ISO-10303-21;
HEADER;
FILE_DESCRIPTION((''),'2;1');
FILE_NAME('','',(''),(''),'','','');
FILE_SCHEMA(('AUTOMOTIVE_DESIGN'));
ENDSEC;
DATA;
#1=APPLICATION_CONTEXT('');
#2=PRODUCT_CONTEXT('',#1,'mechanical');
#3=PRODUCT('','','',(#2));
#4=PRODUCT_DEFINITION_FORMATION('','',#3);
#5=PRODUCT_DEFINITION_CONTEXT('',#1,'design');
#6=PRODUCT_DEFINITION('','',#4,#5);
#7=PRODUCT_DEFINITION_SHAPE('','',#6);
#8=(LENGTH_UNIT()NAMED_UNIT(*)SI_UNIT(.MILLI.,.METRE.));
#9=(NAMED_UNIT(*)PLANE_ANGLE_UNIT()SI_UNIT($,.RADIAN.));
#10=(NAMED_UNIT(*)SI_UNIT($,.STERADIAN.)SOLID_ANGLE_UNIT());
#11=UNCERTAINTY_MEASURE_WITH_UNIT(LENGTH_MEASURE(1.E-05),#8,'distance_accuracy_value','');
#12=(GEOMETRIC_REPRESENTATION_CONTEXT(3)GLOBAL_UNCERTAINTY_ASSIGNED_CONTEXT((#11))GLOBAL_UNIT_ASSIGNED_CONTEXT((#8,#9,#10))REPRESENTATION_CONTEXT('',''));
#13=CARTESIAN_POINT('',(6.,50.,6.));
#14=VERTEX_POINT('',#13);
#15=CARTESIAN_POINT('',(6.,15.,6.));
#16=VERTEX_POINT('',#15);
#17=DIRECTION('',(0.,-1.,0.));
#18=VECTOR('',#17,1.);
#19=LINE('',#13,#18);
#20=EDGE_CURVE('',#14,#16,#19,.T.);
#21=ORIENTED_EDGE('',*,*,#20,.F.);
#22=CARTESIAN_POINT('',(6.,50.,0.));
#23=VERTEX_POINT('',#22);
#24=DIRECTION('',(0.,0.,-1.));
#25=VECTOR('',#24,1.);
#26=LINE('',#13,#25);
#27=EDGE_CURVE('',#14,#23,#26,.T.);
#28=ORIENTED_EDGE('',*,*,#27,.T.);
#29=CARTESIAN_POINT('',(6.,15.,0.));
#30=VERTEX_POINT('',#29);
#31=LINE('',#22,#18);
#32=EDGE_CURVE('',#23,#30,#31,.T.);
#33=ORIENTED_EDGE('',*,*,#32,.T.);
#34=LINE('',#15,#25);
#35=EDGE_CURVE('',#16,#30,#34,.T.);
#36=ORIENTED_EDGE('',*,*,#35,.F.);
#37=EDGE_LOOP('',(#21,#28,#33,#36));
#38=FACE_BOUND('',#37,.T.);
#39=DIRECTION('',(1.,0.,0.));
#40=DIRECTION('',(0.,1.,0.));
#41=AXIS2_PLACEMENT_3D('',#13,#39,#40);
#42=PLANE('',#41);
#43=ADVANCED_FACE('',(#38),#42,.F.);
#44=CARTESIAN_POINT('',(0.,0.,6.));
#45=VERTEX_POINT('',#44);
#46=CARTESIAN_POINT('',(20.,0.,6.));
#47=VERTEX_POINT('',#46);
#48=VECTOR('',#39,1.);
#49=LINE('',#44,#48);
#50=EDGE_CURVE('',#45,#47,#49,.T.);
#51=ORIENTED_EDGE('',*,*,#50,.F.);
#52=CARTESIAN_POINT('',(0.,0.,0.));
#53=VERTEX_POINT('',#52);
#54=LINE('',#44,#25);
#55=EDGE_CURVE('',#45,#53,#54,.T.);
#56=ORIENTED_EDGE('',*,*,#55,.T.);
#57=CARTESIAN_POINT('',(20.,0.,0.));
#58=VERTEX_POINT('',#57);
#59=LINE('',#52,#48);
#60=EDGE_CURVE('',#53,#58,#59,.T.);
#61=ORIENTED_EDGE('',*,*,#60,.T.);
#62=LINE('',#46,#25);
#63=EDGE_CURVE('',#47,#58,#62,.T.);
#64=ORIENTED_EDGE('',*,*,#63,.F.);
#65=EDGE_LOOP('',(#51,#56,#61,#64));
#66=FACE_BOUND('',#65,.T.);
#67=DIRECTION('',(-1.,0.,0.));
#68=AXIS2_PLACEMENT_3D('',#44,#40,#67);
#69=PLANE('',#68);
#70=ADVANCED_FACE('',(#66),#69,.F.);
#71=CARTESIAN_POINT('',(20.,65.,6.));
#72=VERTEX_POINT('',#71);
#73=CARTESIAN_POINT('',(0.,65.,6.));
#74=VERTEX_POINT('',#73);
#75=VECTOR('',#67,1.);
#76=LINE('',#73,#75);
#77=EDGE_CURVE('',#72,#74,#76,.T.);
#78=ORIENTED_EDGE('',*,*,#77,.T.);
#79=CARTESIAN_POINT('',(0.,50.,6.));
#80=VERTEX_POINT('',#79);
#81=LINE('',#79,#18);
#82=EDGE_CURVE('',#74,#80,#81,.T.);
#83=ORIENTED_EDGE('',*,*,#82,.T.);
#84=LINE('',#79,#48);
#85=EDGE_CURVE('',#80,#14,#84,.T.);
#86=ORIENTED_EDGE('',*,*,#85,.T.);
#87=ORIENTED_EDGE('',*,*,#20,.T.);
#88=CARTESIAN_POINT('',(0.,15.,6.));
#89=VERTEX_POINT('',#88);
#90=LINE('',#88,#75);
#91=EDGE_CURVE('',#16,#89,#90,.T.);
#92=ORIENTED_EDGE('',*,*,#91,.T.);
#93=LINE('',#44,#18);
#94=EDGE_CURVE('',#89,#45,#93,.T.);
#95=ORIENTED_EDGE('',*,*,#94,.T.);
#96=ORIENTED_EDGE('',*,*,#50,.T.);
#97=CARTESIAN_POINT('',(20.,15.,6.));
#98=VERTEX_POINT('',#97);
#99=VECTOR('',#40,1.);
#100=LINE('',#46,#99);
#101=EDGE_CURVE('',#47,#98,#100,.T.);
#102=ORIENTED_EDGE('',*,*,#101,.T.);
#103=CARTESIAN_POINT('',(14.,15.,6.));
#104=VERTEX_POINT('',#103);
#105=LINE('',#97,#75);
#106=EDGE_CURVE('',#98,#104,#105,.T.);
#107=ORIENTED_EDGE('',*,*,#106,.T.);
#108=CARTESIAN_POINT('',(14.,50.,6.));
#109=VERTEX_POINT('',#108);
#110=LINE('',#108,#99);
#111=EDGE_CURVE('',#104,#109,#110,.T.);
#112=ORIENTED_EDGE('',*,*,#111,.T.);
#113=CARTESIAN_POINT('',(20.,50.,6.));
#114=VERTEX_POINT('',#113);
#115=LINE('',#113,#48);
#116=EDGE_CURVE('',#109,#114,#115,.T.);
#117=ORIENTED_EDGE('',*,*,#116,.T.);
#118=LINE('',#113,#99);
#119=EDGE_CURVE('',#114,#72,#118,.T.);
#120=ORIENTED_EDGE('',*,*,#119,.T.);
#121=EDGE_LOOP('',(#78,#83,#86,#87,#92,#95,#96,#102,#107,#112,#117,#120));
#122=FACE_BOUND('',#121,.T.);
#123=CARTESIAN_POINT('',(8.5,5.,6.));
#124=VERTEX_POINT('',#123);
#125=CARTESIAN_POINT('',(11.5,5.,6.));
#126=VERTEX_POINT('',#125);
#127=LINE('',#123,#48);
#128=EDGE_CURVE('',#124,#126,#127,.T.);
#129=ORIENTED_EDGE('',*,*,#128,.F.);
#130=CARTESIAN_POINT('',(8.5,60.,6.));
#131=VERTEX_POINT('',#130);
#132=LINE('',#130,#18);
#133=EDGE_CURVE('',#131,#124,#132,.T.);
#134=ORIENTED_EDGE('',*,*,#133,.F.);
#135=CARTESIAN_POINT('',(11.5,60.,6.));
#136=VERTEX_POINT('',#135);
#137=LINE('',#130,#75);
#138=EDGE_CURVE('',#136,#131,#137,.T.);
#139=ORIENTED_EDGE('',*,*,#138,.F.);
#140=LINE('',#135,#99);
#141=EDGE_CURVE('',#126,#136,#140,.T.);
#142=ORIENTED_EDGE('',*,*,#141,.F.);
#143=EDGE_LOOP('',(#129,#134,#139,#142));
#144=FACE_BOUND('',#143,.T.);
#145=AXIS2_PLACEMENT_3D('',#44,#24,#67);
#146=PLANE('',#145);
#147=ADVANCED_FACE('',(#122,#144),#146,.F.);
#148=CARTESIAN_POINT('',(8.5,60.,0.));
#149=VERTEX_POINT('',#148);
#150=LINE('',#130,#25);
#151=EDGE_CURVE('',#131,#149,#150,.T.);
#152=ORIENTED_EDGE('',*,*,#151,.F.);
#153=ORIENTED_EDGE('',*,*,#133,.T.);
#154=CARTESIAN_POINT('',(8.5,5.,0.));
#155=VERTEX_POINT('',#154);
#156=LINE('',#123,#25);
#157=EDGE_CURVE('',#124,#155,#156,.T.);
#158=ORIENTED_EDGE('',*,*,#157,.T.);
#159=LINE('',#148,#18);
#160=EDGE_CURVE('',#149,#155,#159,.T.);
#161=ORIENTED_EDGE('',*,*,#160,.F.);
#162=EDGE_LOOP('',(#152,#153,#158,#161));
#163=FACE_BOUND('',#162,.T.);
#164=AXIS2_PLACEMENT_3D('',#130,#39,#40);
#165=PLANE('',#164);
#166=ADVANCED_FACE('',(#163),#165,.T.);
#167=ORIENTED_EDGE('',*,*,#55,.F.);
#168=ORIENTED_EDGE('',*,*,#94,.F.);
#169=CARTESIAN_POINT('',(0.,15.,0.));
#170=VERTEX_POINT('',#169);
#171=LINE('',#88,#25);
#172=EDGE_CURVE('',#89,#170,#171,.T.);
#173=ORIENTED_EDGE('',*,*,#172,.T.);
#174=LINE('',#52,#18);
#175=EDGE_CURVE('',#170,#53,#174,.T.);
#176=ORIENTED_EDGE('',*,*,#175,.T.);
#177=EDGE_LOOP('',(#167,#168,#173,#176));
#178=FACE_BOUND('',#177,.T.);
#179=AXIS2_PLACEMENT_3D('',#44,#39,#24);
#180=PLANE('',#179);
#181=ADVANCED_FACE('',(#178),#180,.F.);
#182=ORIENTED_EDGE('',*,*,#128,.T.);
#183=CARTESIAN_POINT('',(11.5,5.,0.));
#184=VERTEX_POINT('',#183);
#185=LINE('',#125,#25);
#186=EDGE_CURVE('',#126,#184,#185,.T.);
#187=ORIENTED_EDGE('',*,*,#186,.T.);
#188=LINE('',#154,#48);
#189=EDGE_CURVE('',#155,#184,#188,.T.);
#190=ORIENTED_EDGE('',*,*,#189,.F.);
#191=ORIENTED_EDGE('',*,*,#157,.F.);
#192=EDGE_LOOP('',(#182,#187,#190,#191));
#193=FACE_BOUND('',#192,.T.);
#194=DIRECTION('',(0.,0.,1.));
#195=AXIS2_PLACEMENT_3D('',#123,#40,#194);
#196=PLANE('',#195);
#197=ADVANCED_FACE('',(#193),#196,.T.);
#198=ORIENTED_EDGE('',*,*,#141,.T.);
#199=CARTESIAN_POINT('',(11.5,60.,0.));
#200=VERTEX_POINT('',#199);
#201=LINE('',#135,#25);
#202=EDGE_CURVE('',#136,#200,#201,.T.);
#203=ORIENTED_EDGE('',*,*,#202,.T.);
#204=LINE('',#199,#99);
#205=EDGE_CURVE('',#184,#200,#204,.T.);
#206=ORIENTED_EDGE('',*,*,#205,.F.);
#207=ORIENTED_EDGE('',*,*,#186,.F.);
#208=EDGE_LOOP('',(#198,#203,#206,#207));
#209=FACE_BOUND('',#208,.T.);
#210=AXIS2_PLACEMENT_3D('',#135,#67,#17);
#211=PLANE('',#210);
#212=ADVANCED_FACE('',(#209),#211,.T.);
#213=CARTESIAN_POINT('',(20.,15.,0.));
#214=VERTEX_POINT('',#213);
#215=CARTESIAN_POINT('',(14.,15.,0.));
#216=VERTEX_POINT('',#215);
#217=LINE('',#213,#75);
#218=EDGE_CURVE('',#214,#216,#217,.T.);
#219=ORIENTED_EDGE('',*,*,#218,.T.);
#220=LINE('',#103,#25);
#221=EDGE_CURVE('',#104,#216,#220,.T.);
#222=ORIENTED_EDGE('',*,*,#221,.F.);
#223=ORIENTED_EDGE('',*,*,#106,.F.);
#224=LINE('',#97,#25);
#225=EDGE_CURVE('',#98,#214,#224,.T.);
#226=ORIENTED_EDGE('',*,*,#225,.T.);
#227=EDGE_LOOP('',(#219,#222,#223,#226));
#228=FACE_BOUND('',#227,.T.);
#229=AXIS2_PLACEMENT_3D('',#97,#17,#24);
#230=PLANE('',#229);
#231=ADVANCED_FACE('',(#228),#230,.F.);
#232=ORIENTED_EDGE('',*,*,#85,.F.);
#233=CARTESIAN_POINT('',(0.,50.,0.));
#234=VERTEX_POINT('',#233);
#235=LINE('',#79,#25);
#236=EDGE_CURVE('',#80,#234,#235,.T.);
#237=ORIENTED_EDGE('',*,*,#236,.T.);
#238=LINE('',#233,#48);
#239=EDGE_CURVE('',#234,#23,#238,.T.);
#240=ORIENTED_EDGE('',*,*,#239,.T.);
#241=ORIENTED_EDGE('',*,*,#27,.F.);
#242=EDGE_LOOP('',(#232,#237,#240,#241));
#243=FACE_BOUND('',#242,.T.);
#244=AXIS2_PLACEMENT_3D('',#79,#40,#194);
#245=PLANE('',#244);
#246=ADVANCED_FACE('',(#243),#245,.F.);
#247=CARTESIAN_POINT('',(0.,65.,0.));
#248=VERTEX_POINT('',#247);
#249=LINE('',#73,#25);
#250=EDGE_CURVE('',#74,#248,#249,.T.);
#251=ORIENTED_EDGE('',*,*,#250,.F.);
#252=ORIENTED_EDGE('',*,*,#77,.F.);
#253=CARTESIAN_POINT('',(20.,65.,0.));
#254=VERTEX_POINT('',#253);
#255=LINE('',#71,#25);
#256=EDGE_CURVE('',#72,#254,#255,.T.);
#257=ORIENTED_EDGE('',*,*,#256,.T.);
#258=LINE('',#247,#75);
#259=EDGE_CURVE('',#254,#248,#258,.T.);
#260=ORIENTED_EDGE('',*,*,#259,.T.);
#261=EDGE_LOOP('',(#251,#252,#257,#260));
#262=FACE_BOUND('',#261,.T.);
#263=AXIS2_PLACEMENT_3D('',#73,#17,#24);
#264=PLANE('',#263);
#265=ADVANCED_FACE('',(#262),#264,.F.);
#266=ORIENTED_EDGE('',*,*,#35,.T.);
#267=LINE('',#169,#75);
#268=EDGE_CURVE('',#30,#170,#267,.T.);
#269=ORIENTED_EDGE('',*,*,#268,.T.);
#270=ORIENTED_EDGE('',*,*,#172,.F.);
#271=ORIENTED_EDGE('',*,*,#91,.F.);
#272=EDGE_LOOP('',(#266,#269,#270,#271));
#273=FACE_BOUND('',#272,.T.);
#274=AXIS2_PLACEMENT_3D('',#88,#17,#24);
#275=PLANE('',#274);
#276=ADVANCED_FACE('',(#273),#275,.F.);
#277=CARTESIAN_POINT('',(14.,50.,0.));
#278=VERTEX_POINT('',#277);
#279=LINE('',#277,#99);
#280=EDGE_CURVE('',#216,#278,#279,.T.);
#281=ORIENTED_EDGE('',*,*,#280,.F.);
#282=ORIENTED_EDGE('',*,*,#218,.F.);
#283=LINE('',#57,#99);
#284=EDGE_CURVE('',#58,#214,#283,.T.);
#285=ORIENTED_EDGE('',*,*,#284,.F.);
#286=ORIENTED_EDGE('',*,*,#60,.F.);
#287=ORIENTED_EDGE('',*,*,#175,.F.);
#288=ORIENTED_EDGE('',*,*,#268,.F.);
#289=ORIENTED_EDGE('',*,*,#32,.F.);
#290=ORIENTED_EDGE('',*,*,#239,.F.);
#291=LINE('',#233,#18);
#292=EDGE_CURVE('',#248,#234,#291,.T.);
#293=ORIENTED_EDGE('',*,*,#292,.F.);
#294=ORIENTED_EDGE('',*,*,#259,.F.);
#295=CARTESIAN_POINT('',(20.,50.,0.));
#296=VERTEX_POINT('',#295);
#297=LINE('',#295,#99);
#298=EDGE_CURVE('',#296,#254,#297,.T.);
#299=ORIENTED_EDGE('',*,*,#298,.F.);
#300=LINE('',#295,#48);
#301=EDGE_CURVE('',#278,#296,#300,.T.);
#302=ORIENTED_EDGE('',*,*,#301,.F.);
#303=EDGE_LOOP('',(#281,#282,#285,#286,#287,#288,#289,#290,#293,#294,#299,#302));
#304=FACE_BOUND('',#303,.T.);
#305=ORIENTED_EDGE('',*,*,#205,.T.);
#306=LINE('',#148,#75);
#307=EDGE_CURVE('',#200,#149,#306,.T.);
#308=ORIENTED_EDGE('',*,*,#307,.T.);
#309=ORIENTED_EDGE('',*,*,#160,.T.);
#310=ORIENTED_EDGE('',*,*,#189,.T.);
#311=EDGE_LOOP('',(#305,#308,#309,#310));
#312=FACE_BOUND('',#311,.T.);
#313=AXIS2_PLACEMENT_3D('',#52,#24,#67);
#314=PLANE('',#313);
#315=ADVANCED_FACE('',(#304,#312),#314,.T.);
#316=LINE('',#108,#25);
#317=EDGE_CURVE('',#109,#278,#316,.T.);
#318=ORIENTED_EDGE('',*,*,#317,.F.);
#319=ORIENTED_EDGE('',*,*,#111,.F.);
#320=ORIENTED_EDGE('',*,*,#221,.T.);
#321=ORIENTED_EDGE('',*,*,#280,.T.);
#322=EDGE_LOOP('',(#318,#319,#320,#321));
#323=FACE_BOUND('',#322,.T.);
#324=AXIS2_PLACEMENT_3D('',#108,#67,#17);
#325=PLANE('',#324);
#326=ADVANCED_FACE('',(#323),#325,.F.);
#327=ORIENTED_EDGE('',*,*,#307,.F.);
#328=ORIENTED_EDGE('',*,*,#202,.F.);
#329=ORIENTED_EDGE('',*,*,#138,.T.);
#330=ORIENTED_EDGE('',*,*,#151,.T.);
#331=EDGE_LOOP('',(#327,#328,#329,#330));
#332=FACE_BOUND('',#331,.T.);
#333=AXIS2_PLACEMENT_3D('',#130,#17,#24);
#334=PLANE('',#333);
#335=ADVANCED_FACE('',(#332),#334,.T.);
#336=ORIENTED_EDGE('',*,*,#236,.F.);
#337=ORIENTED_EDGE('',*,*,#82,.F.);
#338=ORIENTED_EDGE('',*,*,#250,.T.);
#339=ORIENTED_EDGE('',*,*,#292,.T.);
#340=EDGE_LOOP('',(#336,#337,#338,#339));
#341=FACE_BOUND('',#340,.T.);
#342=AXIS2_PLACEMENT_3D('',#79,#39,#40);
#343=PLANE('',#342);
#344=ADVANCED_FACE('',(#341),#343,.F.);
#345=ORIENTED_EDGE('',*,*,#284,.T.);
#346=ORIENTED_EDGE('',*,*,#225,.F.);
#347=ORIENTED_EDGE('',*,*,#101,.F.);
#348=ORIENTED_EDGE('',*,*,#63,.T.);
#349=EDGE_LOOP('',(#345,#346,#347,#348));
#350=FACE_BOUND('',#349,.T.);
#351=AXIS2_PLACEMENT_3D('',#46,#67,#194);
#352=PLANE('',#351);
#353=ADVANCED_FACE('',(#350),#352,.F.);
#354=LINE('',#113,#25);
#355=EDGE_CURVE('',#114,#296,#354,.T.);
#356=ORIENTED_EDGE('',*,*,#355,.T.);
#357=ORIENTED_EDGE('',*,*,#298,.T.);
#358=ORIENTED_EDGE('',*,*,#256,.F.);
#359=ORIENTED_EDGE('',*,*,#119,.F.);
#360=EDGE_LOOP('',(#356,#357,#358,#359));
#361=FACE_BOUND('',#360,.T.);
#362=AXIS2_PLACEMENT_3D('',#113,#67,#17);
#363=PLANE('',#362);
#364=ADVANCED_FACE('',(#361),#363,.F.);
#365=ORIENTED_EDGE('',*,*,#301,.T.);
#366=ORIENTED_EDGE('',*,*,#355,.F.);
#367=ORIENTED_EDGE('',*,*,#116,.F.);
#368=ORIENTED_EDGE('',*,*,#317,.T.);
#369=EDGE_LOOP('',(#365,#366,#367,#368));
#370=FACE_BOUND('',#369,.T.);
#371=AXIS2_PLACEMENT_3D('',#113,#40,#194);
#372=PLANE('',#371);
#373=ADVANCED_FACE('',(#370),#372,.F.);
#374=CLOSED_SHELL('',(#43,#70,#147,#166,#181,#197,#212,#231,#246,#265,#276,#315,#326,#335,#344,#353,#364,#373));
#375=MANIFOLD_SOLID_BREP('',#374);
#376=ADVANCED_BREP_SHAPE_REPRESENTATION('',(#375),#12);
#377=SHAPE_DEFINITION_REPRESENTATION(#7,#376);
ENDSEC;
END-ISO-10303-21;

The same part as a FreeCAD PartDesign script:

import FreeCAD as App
import Part
import Sketcher

V = App.Vector
Q = App.Units.Quantity


def add_polygon(sketch, points):
    """Adds a closed chain of lines whose ends are joined by coincident constraints."""
    first, n = sketch.GeometryCount, len(points)
    for a, b in zip(points, points[1:] + points[:1]):
        sketch.addGeometry(Part.LineSegment(App.Vector(*a, 0), App.Vector(*b, 0)), False)
    for i in range(n):
        sketch.addConstraint(Sketcher.Constraint("Coincident", first + i, 2, first + (i + 1) % n, 1))

doc = App.newDocument("Part")
params = doc.addObject("Spreadsheet::Sheet", "Params")
for row, (alias, value) in enumerate([
    ("sketch1_width", "20 mm"),
    ("sketch1_width2", "6 mm"),
    ("sketch1_width3", "3 mm"),
    ("sketch1_height", "15 mm"),
    ("sketch1_height2", "35 mm"),
    ("pad1_length", "6 mm"),
], start=1):
    params.set(f"A{row}", alias)
    params.set(f"B{row}", "=" + value)
    params.setAlias(f"B{row}", alias)

body = doc.addObject("PartDesign::Body", "Body")

sketch1 = doc.addObject("Sketcher::SketchObject", "Sketch")
body.addObject(sketch1)
sketch1.AttachmentSupport = (doc.XY_Plane, [""])
sketch1.MapMode = "FlatFace"
add_polygon(sketch1, [(0, 0), (20, 0), (20, 15), (14, 15), (14, 50), (20, 50), (20, 65), (0, 65), (0, 50), (6, 50), (6, 15), (0, 15)])
add_polygon(sketch1, [(11.5, 5), (8.5, 5), (8.5, 60), (11.5, 60)])
sketch1.addConstraint([
    Sketcher.Constraint("Horizontal", 0),
    Sketcher.Constraint("Vertical", 1),
    Sketcher.Constraint("Horizontal", 2),
    Sketcher.Constraint("Vertical", 3),
    Sketcher.Constraint("Horizontal", 4),
    Sketcher.Constraint("Vertical", 5),
    Sketcher.Constraint("Horizontal", 6),
    Sketcher.Constraint("Vertical", 7),
    Sketcher.Constraint("Horizontal", 8),
    Sketcher.Constraint("Vertical", 9),
    Sketcher.Constraint("Horizontal", 10),
    Sketcher.Constraint("Vertical", 11),
    Sketcher.Constraint("Horizontal", 12),
    Sketcher.Constraint("Vertical", 13),
    Sketcher.Constraint("Horizontal", 14),
    Sketcher.Constraint("Vertical", 15),
    Sketcher.Constraint("Coincident", 11, 2, -1, 1),
    Sketcher.Constraint("PointOnObject", 6, 2, -2),
    Sketcher.Constraint("Horizontal", 4, 2, 7, 2),
    Sketcher.Constraint("Horizontal", 2, 2, 9, 2),
    Sketcher.Constraint("Vertical", 1, 2, 4, 2),
    Sketcher.Constraint("Equal", 4, 8),
    Sketcher.Constraint("Equal", 1, 5),
    Sketcher.Constraint("DistanceX", 0, 1, 0, 2, Q("20 mm")),
    Sketcher.Constraint("DistanceX", 2, 2, 2, 1, Q("6 mm")),
    Sketcher.Constraint("DistanceX", 12, 2, 12, 1, Q("3 mm")),
    Sketcher.Constraint("DistanceY", 1, 1, 1, 2, Q("15 mm")),
    Sketcher.Constraint("DistanceY", 3, 1, 3, 2, Q("35 mm")),
    Sketcher.Constraint("DistanceY", 13, 1, 13, 2, Q("55 mm")),
    Sketcher.Constraint("DistanceY", -1, 1, 12, 2, Q("5 mm")),
    Sketcher.Constraint("DistanceX", -1, 1, 12, 2, Q("8.5 mm")),
])
sketch1.setExpression("Constraints[39]", "Params.sketch1_width")
sketch1.setExpression("Constraints[40]", "Params.sketch1_width2")
sketch1.setExpression("Constraints[41]", "Params.sketch1_width3")
sketch1.setExpression("Constraints[42]", "Params.sketch1_height")
sketch1.setExpression("Constraints[43]", "Params.sketch1_height2")
pad1 = doc.addObject("PartDesign::Pad", "Pad")
body.addObject(pad1)
pad1.Profile = sketch1
pad1.setExpression("Length", "Params.pad1_length")

doc.recompute()
